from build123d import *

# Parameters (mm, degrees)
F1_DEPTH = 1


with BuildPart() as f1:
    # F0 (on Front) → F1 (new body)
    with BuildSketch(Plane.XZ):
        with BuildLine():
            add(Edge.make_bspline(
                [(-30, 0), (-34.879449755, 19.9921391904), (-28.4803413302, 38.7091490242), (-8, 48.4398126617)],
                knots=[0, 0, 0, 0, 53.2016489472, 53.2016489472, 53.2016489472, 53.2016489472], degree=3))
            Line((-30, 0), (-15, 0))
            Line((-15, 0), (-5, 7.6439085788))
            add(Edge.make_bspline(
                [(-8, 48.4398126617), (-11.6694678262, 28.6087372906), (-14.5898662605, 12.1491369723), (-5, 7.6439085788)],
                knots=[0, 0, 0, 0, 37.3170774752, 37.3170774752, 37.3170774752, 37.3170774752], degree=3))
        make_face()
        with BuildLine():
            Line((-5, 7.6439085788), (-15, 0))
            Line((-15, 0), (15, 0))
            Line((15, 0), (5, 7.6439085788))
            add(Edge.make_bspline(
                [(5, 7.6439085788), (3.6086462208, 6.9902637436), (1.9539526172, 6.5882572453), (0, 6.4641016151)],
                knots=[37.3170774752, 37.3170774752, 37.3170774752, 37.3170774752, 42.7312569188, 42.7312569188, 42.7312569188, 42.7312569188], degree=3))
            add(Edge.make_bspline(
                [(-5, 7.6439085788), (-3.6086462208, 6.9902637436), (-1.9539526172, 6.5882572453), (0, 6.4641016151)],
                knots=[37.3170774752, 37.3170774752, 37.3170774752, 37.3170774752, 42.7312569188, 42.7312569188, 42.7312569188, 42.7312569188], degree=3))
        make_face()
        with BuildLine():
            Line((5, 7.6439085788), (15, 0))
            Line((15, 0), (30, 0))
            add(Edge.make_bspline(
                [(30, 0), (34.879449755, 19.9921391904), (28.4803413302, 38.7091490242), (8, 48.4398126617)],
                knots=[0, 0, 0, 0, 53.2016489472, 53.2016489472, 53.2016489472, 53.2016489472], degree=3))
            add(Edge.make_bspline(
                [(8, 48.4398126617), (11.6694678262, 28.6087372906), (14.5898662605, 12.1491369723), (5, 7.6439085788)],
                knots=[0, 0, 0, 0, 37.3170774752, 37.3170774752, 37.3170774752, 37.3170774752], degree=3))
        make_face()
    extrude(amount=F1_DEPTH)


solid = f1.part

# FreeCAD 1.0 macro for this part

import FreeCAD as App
import Part
import Sketcher

V = App.Vector

doc = App.newDocument("Part")
body = doc.addObject("PartDesign::Body", "Body")

# Sketch on XZ plane
sketch1 = doc.addObject("Sketcher::SketchObject", "Sketch")
body.addObject(sketch1)
sketch1.AttachmentSupport = (doc.XZ_Plane, [""])
sketch1.MapMode = "FlatFace"
sketch1.addGeometry([
    Part.LineSegment(V(-30, 0, 0), V(30, 0, 0)),  # 0
    Part.BSplineCurve([V(30, 0, 0), V(34.87945, 19.992139, 0), V(28.480341, 38.709149, 0), V(8, 48.439813, 0)], [4, 4], [0, 53.201648947], False, 3, [1, 1, 1, 1], False),  # 1
    Part.BSplineCurve([V(8, 48.439813, 0), V(11.669468, 28.608737, 0), V(14.589866, 12.149137, 0), V(5, 7.643909, 0)], [4, 4], [0, 37.317077475], False, 3, [1, 1, 1, 1], False),  # 2
    Part.BSplineCurve([V(5, 7.643909, 0), V(3.608646, 6.990264, 0), V(1.953953, 6.588257, 0), V(0, 6.464102, 0)], [4, 4], [37.317077475, 42.731256919], False, 3, [1, 1, 1, 1], False),  # 3
    Part.BSplineCurve([V(-5, 7.643909, 0), V(-3.608646, 6.990264, 0), V(-1.953953, 6.588257, 0), V(0, 6.464102, 0)], [4, 4], [37.317077475, 42.731256919], False, 3, [1, 1, 1, 1], False),  # 4
    Part.BSplineCurve([V(-8, 48.439813, 0), V(-11.669468, 28.608737, 0), V(-14.589866, 12.149137, 0), V(-5, 7.643909, 0)], [4, 4], [0, 37.317077475], False, 3, [1, 1, 1, 1], False),  # 5
    Part.BSplineCurve([V(-30, 0, 0), V(-34.87945, 19.992139, 0), V(-28.480341, 38.709149, 0), V(-8, 48.439813, 0)], [4, 4], [0, 53.201648947], False, 3, [1, 1, 1, 1], False),  # 6
], False)
sketch1.addConstraint([
    Sketcher.Constraint("Block", 1),
    Sketcher.Constraint("Block", 2),
    Sketcher.Constraint("Block", 3),
    Sketcher.Constraint("Block", 4),
    Sketcher.Constraint("Block", 5),
    Sketcher.Constraint("Block", 6),
    Sketcher.Constraint("Coincident", 0, 2, 1, 1),
    Sketcher.Constraint("Coincident", 6, 1, 0, 1),
])
pad1 = doc.addObject("PartDesign::Pad", "Pad")
body.addObject(pad1)
pad1.Profile = sketch1
pad1.Length = 1

doc.recompute()
